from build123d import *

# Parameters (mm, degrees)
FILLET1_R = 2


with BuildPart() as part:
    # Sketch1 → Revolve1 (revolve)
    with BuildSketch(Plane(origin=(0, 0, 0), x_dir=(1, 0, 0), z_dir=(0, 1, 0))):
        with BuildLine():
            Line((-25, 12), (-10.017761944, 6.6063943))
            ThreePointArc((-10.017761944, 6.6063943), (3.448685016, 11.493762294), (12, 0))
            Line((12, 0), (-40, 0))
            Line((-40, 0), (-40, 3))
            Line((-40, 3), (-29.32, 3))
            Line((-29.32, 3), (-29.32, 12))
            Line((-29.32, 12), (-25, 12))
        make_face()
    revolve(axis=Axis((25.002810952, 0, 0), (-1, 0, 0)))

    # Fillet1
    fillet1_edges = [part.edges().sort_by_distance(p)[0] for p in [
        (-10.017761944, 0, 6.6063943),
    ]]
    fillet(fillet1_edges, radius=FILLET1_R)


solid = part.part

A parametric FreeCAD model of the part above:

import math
import FreeCAD as App
import Part
import Sketcher

V = App.Vector


def edges_at(feature, points):
    """Names of the edges that pass closest to the given points."""
    edges = feature.Shape.Edges
    near = lambda p: min(range(len(edges)), key=lambda i: edges[i].distToShape(Part.Vertex(*p))[0])
    return sorted({f"Edge{near(p) + 1}" for p in points})

doc = App.newDocument("Part")
params = doc.addObject("Spreadsheet::Sheet", "Params")
for row, (alias, value) in enumerate([
    ("sketch1_radius", "12 mm"),
    ("sketch1_width", "52 mm"),
    ("sketch1_height", "9 mm"),
    ("sketch1_height2", "3 mm"),
    ("sketch1_width2", "4.32 mm"),
    ("revolution_angle", "360 deg"),
    ("fillet_radius", "2 mm"),
], start=1):
    params.set(f"A{row}", alias)
    params.set(f"B{row}", "=" + value)
    params.setAlias(f"B{row}", alias)

body = doc.addObject("PartDesign::Body", "Body")

sketch1 = doc.addObject("Sketcher::SketchObject", "Sketch")
body.addObject(sketch1)
sketch1.AttachmentSupport = (doc.XZ_Plane, [""])
sketch1.MapMode = "FlatFace"
sketch1.addGeometry([
    Part.LineSegment(V(-10, -6.6, 0), V(-25, -12, 0)),
    Part.LineSegment(V(-25, -12, 0), V(-29.3, -12, 0)),
    Part.LineSegment(V(-29.3, -12, 0), V(-29.3, -3, 0)),
    Part.LineSegment(V(-29.3, -3, 0), V(-40, -3, 0)),
    Part.LineSegment(V(-40, -3, 0), V(-40, 0, 0)),
    Part.LineSegment(V(-40, 0, 0), V(12, 0, 0)),
    Part.ArcOfCircle(Part.Circle(V(0, 0, 0), V(0, 0, 1), 12), math.radians(-147), math.radians(0)),
], False)
sketch1.addConstraint([
    Sketcher.Constraint("Coincident", 0, 2, 1, 1),
    Sketcher.Constraint("Coincident", 1, 2, 2, 1),
    Sketcher.Constraint("Coincident", 2, 2, 3, 1),
    Sketcher.Constraint("Coincident", 3, 2, 4, 1),
    Sketcher.Constraint("Coincident", 4, 2, 5, 1),
    Sketcher.Constraint("Coincident", 5, 2, 6, 2),
    Sketcher.Constraint("Coincident", 6, 1, 0, 1),
    Sketcher.Constraint("Horizontal", 1),
    Sketcher.Constraint("Vertical", 2),
    Sketcher.Constraint("Horizontal", 3),
    Sketcher.Constraint("Vertical", 4),
    Sketcher.Constraint("Horizontal", 5),
    Sketcher.Constraint("Coincident", 6, 3, -1, 1),
    Sketcher.Constraint("PointOnObject", 4, 2, -1),
    Sketcher.Constraint("Radius", 6, 12.0),
    Sketcher.Constraint("DistanceX", 5, 1, 5, 2, 52.0),
    Sketcher.Constraint("DistanceY", 2, 1, 2, 2, 9.0),
    Sketcher.Constraint("DistanceY", 4, 1, 4, 2, 3.0),
    Sketcher.Constraint("DistanceX", 0, 2, -1, 1, 25.0),
    Sketcher.Constraint("DistanceX", 1, 2, 1, 1, 4.32),
    Sketcher.Constraint("Distance", 0, 15.923518),
])
sketch1.setExpression("Constraints[14]", "Params.sketch1_radius")
sketch1.setExpression("Constraints[15]", "Params.sketch1_width")
sketch1.setExpression("Constraints[16]", "Params.sketch1_height")
sketch1.setExpression("Constraints[17]", "Params.sketch1_height2")
sketch1.setExpression("Constraints[19]", "Params.sketch1_width2")
revolution = doc.addObject("PartDesign::Revolution", "Revolution")
body.addObject(revolution)
revolution.Profile = sketch1
revolution.ReferenceAxis = (sketch1, ["H_Axis"])
revolution.setExpression("Angle", "Params.revolution_angle")
doc.recompute()

fillet = doc.addObject("PartDesign::Fillet", "Fillet")
body.addObject(fillet)
fillet.Base = (revolution, edges_at(revolution, [(-10.018, 0, 6.606)]))
fillet.setExpression("Radius", "Params.fillet_radius")

doc.recompute()
